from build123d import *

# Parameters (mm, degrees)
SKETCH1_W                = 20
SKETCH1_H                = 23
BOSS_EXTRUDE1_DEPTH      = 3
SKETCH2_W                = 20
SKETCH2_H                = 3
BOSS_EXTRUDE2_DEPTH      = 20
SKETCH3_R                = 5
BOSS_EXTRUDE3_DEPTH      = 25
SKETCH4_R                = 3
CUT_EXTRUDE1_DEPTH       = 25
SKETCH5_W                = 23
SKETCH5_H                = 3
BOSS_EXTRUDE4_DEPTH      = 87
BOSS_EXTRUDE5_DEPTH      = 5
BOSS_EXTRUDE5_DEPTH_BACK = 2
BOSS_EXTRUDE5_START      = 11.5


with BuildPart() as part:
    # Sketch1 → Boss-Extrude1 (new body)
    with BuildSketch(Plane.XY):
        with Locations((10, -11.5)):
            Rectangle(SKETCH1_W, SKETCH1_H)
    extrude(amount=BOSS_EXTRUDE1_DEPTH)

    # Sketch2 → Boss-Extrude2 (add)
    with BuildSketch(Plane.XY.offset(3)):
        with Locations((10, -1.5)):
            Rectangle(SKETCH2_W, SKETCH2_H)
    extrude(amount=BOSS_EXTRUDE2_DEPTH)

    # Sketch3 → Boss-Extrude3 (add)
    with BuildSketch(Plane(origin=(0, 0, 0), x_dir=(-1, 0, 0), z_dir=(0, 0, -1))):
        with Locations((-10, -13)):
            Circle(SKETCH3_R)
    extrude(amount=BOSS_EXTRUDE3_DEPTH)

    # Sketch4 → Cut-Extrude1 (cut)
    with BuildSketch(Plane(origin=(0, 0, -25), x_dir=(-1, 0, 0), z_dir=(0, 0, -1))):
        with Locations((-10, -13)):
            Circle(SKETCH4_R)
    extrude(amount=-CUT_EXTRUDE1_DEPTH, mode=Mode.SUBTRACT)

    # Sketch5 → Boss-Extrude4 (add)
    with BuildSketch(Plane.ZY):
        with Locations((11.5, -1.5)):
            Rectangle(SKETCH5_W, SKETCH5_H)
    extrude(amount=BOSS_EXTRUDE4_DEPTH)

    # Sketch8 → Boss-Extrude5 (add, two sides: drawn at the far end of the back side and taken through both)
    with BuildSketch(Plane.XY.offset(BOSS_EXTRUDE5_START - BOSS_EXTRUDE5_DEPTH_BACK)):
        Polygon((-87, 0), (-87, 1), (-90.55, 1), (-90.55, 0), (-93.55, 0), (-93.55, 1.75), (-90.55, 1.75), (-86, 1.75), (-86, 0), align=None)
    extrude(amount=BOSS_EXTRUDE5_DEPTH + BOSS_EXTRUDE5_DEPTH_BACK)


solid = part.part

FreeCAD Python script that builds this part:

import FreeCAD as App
import Part
import Sketcher
from FreeCAD import Vector
Q = App.Units.Quantity


def add_polygon(sketch, points):
    """Adds a closed chain of lines whose ends are joined by coincident constraints."""
    first, n = sketch.GeometryCount, len(points)
    for a, b in zip(points, points[1:] + points[:1]):
        sketch.addGeometry(Part.LineSegment(App.Vector(*a, 0), App.Vector(*b, 0)), False)
    for i in range(n):
        sketch.addConstraint(Sketcher.Constraint("Coincident", first + i, 2, first + (i + 1) % n, 1))

doc = App.newDocument("Part")
body = doc.addObject("PartDesign::Body", "Body")

sketch1 = body.newObject("Sketcher::SketchObject", "Sketch")
sketch1.AttachmentSupport = (doc.getObject("XY_Plane"), [""])
sketch1.MapMode = "FlatFace"
add_polygon(sketch1, [(0, 0), (0, -23), (20, -23), (20, 0)])
sketch1.addConstraint(Sketcher.Constraint("Vertical", 0))
sketch1.addConstraint(Sketcher.Constraint("Horizontal", 1))
sketch1.addConstraint(Sketcher.Constraint("Vertical", 2))
sketch1.addConstraint(Sketcher.Constraint("Horizontal", 3))
sketch1.addConstraint(Sketcher.Constraint("Coincident", 3, 2, -1, 1))
sketch1.addConstraint(Sketcher.Constraint("DistanceX", 1, 1, 1, 2, Q("20 mm")))
sketch1.addConstraint(Sketcher.Constraint("DistanceY", 0, 2, 0, 1, Q("23 mm")))
pad1 = body.newObject("PartDesign::Pad", "Pad")
pad1.Profile = sketch1
pad1.Length = 3

sketch2 = body.newObject("Sketcher::SketchObject", "Sketch001")
sketch2.AttachmentSupport = (doc.getObject("XY_Plane"), [""])
sketch2.MapMode = "FlatFace"
sketch2.AttachmentOffset = App.Placement(Vector(0, 0, 3), App.Rotation())
add_polygon(sketch2, [(0, 0), (0, -3), (20, -3), (20, 0)])
sketch2.addConstraint(Sketcher.Constraint("Vertical", 0))
sketch2.addConstraint(Sketcher.Constraint("Horizontal", 1))
sketch2.addConstraint(Sketcher.Constraint("Vertical", 2))
sketch2.addConstraint(Sketcher.Constraint("Horizontal", 3))
sketch2.addConstraint(Sketcher.Constraint("Coincident", 3, 2, -1, 1))
sketch2.addConstraint(Sketcher.Constraint("DistanceX", 1, 1, 1, 2, Q("20 mm")))
sketch2.addConstraint(Sketcher.Constraint("DistanceY", 0, 2, 0, 1, Q("3 mm")))
pad2 = body.newObject("PartDesign::Pad", "Pad001")
pad2.Profile = sketch2
pad2.Length = 20

sketch3 = body.newObject("Sketcher::SketchObject", "Sketch002")
sketch3.AttachmentSupport = (doc.getObject("XY_Plane"), [""])
sketch3.MapMode = "FlatFace"
sketch3.addGeometry(Part.Circle(Vector(10, -13, 0), Vector(0, 0, 1), 5), False)
sketch3.addConstraint(Sketcher.Constraint("Diameter", 0, Q("10 mm")))
sketch3.addConstraint(Sketcher.Constraint("DistanceX", -1, 1, 0, 3, Q("10 mm")))
sketch3.addConstraint(Sketcher.Constraint("DistanceY", 0, 3, -1, 1, Q("13 mm")))
pad3 = body.newObject("PartDesign::Pad", "Pad002")
pad3.Profile = sketch3
pad3.Length = 25
pad3.Reversed = True

sketch4 = body.newObject("Sketcher::SketchObject", "Sketch003")
sketch4.AttachmentSupport = (doc.getObject("XY_Plane"), [""])
sketch4.MapMode = "FlatFace"
sketch4.AttachmentOffset = App.Placement(Vector(0, 0, -25), App.Rotation())
sketch4.addGeometry(Part.Circle(Vector(10, -13, 0), Vector(0, 0, 1), 3), False)
sketch4.addConstraint(Sketcher.Constraint("Diameter", 0, Q("6 mm")))
sketch4.addConstraint(Sketcher.Constraint("DistanceX", -1, 1, 0, 3, Q("10 mm")))
sketch4.addConstraint(Sketcher.Constraint("DistanceY", 0, 3, -1, 1, Q("13 mm")))
pocket1 = body.newObject("PartDesign::Pocket", "Pocket")
pocket1.Profile = sketch4
pocket1.Length = 25
pocket1.Reversed = True

sketch5 = body.newObject("Sketcher::SketchObject", "Sketch004")
sketch5.AttachmentSupport = (doc.getObject("YZ_Plane"), [""])
sketch5.MapMode = "FlatFace"
add_polygon(sketch5, [(0, 0), (-3, 0), (-3, 23), (0, 23)])
sketch5.addConstraint(Sketcher.Constraint("Horizontal", 0))
sketch5.addConstraint(Sketcher.Constraint("Vertical", 1))
sketch5.addConstraint(Sketcher.Constraint("Horizontal", 2))
sketch5.addConstraint(Sketcher.Constraint("Vertical", 3))
sketch5.addConstraint(Sketcher.Constraint("Coincident", 3, 2, -1, 1))
sketch5.addConstraint(Sketcher.Constraint("DistanceX", 0, 2, 0, 1, Q("3 mm")))
sketch5.addConstraint(Sketcher.Constraint("DistanceY", 1, 1, 1, 2, Q("23 mm")))
pad4 = body.newObject("PartDesign::Pad", "Pad003")
pad4.Profile = sketch5
pad4.Length = 87
pad4.Reversed = True

sketch6 = body.newObject("Sketcher::SketchObject", "Sketch005")
sketch6.AttachmentSupport = (doc.getObject("XY_Plane"), [""])
sketch6.MapMode = "FlatFace"
sketch6.AttachmentOffset = App.Placement(Vector(0, 0, 11.5), App.Rotation())
add_polygon(sketch6, [(-87, 1), (-87, 0), (-86, 0), (-86, 1.75), (-93.55, 1.75), (-93.55, 0), (-90.55, 0), (-90.55, 1)])
sketch6.addConstraint(Sketcher.Constraint("Vertical", 0))
sketch6.addConstraint(Sketcher.Constraint("Horizontal", 1))
sketch6.addConstraint(Sketcher.Constraint("Vertical", 2))
sketch6.addConstraint(Sketcher.Constraint("Horizontal", 3))
sketch6.addConstraint(Sketcher.Constraint("Vertical", 4))
sketch6.addConstraint(Sketcher.Constraint("Horizontal", 5))
sketch6.addConstraint(Sketcher.Constraint("Vertical", 6))
sketch6.addConstraint(Sketcher.Constraint("Horizontal", 7))
sketch6.addConstraint(Sketcher.Constraint("PointOnObject", 0, 2, -1))
sketch6.addConstraint(Sketcher.Constraint("PointOnObject", 4, 2, -1))
sketch6.addConstraint(Sketcher.Constraint("Equal", 1, 0))
sketch6.addConstraint(Sketcher.Constraint("DistanceX", 1, 1, 1, 2, Q("1 mm")))
sketch6.addConstraint(Sketcher.Constraint("DistanceX", 5, 1, 5, 2, Q("3 mm")))
sketch6.addConstraint(Sketcher.Constraint("DistanceX", 0, 2, -1, 1, Q("87 mm")))
sketch6.addConstraint(Sketcher.Constraint("DistanceX", 3, 2, 3, 1, Q("7.55 mm")))
sketch6.addConstraint(Sketcher.Constraint("DistanceY", 2, 1, 2, 2, Q("1.75 mm")))
pad5 = body.newObject("PartDesign::Pad", "Pad004")
pad5.Profile = sketch6
pad5.Type = "TwoLengths"
pad5.Length = 5
pad5.Length2 = 2

doc.recompute()
